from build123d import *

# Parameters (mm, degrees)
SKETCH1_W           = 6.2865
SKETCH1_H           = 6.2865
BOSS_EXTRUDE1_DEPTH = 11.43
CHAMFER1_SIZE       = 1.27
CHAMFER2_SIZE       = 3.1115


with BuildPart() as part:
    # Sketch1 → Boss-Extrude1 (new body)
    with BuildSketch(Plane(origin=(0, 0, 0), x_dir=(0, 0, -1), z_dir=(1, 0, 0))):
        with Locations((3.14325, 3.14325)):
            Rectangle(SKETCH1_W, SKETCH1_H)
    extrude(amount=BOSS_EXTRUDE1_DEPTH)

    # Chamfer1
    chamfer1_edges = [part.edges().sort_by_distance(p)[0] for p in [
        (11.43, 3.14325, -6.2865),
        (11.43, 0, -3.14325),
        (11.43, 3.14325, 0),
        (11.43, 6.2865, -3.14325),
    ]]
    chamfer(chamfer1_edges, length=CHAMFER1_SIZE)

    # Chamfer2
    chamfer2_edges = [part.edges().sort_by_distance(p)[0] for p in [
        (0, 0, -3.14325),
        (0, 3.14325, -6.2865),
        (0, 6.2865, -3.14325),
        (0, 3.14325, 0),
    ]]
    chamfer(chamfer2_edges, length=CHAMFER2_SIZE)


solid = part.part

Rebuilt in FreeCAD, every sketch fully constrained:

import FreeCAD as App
import Part
import Sketcher

V = App.Vector
Q = App.Units.Quantity


def edges_at(feature, points):
    """Names of the edges that pass closest to the given points."""
    edges = feature.Shape.Edges
    near = lambda p: min(range(len(edges)), key=lambda i: edges[i].distToShape(Part.Vertex(*p))[0])
    return sorted({f"Edge{near(p) + 1}" for p in points})

doc = App.newDocument("Part")
body = doc.addObject("PartDesign::Body", "Body")

# Sketch on YZ plane
sketch1 = body.newObject("Sketcher::SketchObject", "Sketch")
sketch1.AttachmentSupport = (doc.getObject("YZ_Plane"), [""])
sketch1.MapMode = "FlatFace"
sketch1.addGeometry([
    Part.LineSegment(V(6.2865, 0, 0), V(0, 0, 0)),
    Part.LineSegment(V(0, 0, 0), V(0, -6.2865, 0)),
    Part.LineSegment(V(0, -6.2865, 0), V(6.2865, -6.2865, 0)),
    Part.LineSegment(V(6.2865, -6.2865, 0), V(6.2865, 0, 0)),
], False)
sketch1.addConstraint([
    Sketcher.Constraint("Coincident", 0, 2, 1, 1),
    Sketcher.Constraint("Coincident", 1, 2, 2, 1),
    Sketcher.Constraint("Coincident", 2, 2, 3, 1),
    Sketcher.Constraint("Coincident", 3, 2, 0, 1),
    Sketcher.Constraint("Horizontal", 0),
    Sketcher.Constraint("Vertical", 1),
    Sketcher.Constraint("Horizontal", 2),
    Sketcher.Constraint("Vertical", 3),
    Sketcher.Constraint("Coincident", 0, 2, -1, 1),
    Sketcher.Constraint("Equal", 2, 1),
    Sketcher.Constraint("DistanceX", 0, 2, 0, 1, Q("0.2475 in")),
])
pad1 = body.newObject("PartDesign::Pad", "Pad")
pad1.Profile = sketch1
pad1.Length = Q("0.45 in")
doc.recompute()

chamfer = body.newObject("PartDesign::Chamfer", "Chamfer")
chamfer.Base = (pad1, edges_at(pad1, [
    (11.43, 3.143, -6.287),
    (11.43, 0, -3.143),
    (11.43, 3.143, 0),
    (11.43, 6.287, -3.143),
]))
chamfer.Size = Q("0.05 in")
doc.recompute()

chamfer2 = body.newObject("PartDesign::Chamfer", "Chamfer001")
chamfer2.Base = (chamfer, edges_at(chamfer, [
    (0, 0, -3.143),
    (0, 3.143, -6.287),
    (0, 6.287, -3.143),
    (0, 3.143, 0),
]))
chamfer2.Size = Q("0.1225 in")

doc.recompute()
